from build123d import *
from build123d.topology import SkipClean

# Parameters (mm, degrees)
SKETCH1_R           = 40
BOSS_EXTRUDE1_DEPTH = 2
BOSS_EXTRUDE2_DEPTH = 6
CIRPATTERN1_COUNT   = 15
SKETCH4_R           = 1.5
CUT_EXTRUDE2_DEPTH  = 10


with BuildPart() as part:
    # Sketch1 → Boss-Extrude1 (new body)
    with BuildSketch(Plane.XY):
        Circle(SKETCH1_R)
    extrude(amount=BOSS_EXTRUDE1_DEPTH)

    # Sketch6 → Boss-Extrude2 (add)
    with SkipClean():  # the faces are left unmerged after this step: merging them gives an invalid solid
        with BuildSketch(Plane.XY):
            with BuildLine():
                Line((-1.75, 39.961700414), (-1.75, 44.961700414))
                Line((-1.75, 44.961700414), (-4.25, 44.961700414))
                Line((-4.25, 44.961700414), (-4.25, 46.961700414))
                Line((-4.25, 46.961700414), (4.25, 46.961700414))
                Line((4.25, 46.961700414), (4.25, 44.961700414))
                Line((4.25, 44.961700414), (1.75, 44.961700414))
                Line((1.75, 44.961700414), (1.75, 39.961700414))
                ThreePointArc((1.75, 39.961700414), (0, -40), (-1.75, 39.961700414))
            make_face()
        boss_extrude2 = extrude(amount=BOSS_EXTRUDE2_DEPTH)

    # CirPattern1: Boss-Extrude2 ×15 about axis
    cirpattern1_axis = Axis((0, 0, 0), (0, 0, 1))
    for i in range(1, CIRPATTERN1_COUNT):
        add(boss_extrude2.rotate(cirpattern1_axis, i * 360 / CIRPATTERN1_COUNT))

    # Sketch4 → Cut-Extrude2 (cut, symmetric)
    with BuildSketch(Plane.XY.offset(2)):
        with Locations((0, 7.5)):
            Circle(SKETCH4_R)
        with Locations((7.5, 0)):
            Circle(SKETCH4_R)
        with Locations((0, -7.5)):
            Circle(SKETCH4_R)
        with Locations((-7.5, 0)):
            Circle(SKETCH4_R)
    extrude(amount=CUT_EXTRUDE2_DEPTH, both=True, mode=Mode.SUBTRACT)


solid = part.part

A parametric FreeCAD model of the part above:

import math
import FreeCAD as App
import Part
import Sketcher

doc = App.newDocument("Part")
body = doc.addObject("PartDesign::Body", "Body")

sketch1 = body.newObject("Sketcher::SketchObject", "Sketch")
sketch1.AttachmentSupport = (doc.getObject("XY_Plane"), [""])
sketch1.MapMode = "FlatFace"
sketch1.addGeometry(Part.Circle(App.Vector(0, 0, 0), App.Vector(0, 0, 1), 40), False)
sketch1.addConstraint([
    Sketcher.Constraint("Coincident", 0, 3, -1, 1),
    Sketcher.Constraint("Diameter", 0, 80.0),
])
pad1 = body.newObject("PartDesign::Pad", "Pad")
pad1.Profile = sketch1
pad1.Length = 2

sketch2 = body.newObject("Sketcher::SketchObject", "Sketch001")
sketch2.AttachmentSupport = (doc.getObject("XY_Plane"), [""])
sketch2.MapMode = "FlatFace"
sketch2.addGeometry([
    Part.LineSegment(App.Vector(-1.8, 45, 0), App.Vector(-1.8, 40, 0)),
    Part.ArcOfCircle(Part.Circle(App.Vector(0, 0, 0), App.Vector(0, 0, 1), 40), math.radians(93), math.radians(447)),
    Part.LineSegment(App.Vector(1.8, 40, 0), App.Vector(1.8, 45, 0)),
    Part.LineSegment(App.Vector(1.8, 45, 0), App.Vector(4.2, 45, 0)),
    Part.LineSegment(App.Vector(4.2, 45, 0), App.Vector(4.2, 47, 0)),
    Part.LineSegment(App.Vector(4.2, 47, 0), App.Vector(-4.2, 47, 0)),
    Part.LineSegment(App.Vector(-4.2, 47, 0), App.Vector(-4.2, 45, 0)),
    Part.LineSegment(App.Vector(-4.2, 45, 0), App.Vector(-1.8, 45, 0)),
], False)
sketch2.addConstraint([
    Sketcher.Constraint("Coincident", 0, 2, 1, 1),
    Sketcher.Constraint("Coincident", 1, 2, 2, 1),
    Sketcher.Constraint("Coincident", 2, 2, 3, 1),
    Sketcher.Constraint("Coincident", 3, 2, 4, 1),
    Sketcher.Constraint("Coincident", 4, 2, 5, 1),
    Sketcher.Constraint("Coincident", 5, 2, 6, 1),
    Sketcher.Constraint("Coincident", 6, 2, 7, 1),
    Sketcher.Constraint("Coincident", 7, 2, 0, 1),
    Sketcher.Constraint("Vertical", 0),
    Sketcher.Constraint("Vertical", 2),
    Sketcher.Constraint("Horizontal", 3),
    Sketcher.Constraint("Vertical", 4),
    Sketcher.Constraint("Horizontal", 5),
    Sketcher.Constraint("Vertical", 6),
    Sketcher.Constraint("Horizontal", 7),
    Sketcher.Constraint("Coincident", 1, 3, -1, 1),
    Sketcher.Constraint("Symmetric", 3, 2, 6, 2, -2),
    Sketcher.Constraint("Horizontal", 0, 2, 1, 2),
    Sketcher.Constraint("Radius", 1, 40.0),
    Sketcher.Constraint("DistanceY", 0, 2, 0, 1, 5.0),
    Sketcher.Constraint("DistanceY", 4, 1, 4, 2, 2.0),
    Sketcher.Constraint("DistanceX", 3, 1, 3, 2, 2.5),
    Sketcher.Constraint("DistanceX", 5, 2, 5, 1, 8.5),
])
pad2 = body.newObject("PartDesign::Pad", "Pad001")
pad2.Profile = sketch2
pad2.Length = 6
doc.recompute()

polarpattern = body.newObject("PartDesign::PolarPattern", "PolarPattern")
polarpattern.Originals = [pad2]
polarpattern.Axis = (doc.getObject("Z_Axis"), [""])
polarpattern.Angle = 360
polarpattern.Occurrences = 15
body.Tip = polarpattern

sketch3 = body.newObject("Sketcher::SketchObject", "Sketch002")
sketch3.AttachmentSupport = (doc.getObject("XY_Plane"), [""])
sketch3.MapMode = "FlatFace"
sketch3.AttachmentOffset = App.Placement(App.Vector(0, 0, 2), App.Rotation())
sketch3.addGeometry([
    Part.Circle(App.Vector(0, 7.5, 0), App.Vector(0, 0, 1), 1.5),
    Part.Circle(App.Vector(7.5, 0, 0), App.Vector(0, 0, 1), 1.5),
    Part.Circle(App.Vector(0, -7.5, 0), App.Vector(0, 0, 1), 1.5),
    Part.Circle(App.Vector(-7.5, 0, 0), App.Vector(0, 0, 1), 1.5),
], False)
sketch3.addConstraint([
    Sketcher.Constraint("Equal", 0, 1),
    Sketcher.Constraint("Equal", 1, 2),
    Sketcher.Constraint("Equal", 2, 3),
    Sketcher.Constraint("Symmetric", 0, 3, 2, 3, -1, 1),
    Sketcher.Constraint("Symmetric", 1, 3, 3, 3, -1, 1),
    Sketcher.Constraint("PointOnObject", 0, 3, -2),
    Sketcher.Constraint("PointOnObject", 1, 3, -1),
    Sketcher.Constraint("Diameter", 0, 3.0),
    Sketcher.Constraint("DistanceY", 2, 3, 0, 3, 15.0),
    Sketcher.Constraint("DistanceX", 3, 3, 1, 3, 15.0),
])
pocket1 = body.newObject("PartDesign::Pocket", "Pocket")
pocket1.Profile = sketch3
pocket1.Length = 20
pocket1.Midplane = True

doc.recompute()
